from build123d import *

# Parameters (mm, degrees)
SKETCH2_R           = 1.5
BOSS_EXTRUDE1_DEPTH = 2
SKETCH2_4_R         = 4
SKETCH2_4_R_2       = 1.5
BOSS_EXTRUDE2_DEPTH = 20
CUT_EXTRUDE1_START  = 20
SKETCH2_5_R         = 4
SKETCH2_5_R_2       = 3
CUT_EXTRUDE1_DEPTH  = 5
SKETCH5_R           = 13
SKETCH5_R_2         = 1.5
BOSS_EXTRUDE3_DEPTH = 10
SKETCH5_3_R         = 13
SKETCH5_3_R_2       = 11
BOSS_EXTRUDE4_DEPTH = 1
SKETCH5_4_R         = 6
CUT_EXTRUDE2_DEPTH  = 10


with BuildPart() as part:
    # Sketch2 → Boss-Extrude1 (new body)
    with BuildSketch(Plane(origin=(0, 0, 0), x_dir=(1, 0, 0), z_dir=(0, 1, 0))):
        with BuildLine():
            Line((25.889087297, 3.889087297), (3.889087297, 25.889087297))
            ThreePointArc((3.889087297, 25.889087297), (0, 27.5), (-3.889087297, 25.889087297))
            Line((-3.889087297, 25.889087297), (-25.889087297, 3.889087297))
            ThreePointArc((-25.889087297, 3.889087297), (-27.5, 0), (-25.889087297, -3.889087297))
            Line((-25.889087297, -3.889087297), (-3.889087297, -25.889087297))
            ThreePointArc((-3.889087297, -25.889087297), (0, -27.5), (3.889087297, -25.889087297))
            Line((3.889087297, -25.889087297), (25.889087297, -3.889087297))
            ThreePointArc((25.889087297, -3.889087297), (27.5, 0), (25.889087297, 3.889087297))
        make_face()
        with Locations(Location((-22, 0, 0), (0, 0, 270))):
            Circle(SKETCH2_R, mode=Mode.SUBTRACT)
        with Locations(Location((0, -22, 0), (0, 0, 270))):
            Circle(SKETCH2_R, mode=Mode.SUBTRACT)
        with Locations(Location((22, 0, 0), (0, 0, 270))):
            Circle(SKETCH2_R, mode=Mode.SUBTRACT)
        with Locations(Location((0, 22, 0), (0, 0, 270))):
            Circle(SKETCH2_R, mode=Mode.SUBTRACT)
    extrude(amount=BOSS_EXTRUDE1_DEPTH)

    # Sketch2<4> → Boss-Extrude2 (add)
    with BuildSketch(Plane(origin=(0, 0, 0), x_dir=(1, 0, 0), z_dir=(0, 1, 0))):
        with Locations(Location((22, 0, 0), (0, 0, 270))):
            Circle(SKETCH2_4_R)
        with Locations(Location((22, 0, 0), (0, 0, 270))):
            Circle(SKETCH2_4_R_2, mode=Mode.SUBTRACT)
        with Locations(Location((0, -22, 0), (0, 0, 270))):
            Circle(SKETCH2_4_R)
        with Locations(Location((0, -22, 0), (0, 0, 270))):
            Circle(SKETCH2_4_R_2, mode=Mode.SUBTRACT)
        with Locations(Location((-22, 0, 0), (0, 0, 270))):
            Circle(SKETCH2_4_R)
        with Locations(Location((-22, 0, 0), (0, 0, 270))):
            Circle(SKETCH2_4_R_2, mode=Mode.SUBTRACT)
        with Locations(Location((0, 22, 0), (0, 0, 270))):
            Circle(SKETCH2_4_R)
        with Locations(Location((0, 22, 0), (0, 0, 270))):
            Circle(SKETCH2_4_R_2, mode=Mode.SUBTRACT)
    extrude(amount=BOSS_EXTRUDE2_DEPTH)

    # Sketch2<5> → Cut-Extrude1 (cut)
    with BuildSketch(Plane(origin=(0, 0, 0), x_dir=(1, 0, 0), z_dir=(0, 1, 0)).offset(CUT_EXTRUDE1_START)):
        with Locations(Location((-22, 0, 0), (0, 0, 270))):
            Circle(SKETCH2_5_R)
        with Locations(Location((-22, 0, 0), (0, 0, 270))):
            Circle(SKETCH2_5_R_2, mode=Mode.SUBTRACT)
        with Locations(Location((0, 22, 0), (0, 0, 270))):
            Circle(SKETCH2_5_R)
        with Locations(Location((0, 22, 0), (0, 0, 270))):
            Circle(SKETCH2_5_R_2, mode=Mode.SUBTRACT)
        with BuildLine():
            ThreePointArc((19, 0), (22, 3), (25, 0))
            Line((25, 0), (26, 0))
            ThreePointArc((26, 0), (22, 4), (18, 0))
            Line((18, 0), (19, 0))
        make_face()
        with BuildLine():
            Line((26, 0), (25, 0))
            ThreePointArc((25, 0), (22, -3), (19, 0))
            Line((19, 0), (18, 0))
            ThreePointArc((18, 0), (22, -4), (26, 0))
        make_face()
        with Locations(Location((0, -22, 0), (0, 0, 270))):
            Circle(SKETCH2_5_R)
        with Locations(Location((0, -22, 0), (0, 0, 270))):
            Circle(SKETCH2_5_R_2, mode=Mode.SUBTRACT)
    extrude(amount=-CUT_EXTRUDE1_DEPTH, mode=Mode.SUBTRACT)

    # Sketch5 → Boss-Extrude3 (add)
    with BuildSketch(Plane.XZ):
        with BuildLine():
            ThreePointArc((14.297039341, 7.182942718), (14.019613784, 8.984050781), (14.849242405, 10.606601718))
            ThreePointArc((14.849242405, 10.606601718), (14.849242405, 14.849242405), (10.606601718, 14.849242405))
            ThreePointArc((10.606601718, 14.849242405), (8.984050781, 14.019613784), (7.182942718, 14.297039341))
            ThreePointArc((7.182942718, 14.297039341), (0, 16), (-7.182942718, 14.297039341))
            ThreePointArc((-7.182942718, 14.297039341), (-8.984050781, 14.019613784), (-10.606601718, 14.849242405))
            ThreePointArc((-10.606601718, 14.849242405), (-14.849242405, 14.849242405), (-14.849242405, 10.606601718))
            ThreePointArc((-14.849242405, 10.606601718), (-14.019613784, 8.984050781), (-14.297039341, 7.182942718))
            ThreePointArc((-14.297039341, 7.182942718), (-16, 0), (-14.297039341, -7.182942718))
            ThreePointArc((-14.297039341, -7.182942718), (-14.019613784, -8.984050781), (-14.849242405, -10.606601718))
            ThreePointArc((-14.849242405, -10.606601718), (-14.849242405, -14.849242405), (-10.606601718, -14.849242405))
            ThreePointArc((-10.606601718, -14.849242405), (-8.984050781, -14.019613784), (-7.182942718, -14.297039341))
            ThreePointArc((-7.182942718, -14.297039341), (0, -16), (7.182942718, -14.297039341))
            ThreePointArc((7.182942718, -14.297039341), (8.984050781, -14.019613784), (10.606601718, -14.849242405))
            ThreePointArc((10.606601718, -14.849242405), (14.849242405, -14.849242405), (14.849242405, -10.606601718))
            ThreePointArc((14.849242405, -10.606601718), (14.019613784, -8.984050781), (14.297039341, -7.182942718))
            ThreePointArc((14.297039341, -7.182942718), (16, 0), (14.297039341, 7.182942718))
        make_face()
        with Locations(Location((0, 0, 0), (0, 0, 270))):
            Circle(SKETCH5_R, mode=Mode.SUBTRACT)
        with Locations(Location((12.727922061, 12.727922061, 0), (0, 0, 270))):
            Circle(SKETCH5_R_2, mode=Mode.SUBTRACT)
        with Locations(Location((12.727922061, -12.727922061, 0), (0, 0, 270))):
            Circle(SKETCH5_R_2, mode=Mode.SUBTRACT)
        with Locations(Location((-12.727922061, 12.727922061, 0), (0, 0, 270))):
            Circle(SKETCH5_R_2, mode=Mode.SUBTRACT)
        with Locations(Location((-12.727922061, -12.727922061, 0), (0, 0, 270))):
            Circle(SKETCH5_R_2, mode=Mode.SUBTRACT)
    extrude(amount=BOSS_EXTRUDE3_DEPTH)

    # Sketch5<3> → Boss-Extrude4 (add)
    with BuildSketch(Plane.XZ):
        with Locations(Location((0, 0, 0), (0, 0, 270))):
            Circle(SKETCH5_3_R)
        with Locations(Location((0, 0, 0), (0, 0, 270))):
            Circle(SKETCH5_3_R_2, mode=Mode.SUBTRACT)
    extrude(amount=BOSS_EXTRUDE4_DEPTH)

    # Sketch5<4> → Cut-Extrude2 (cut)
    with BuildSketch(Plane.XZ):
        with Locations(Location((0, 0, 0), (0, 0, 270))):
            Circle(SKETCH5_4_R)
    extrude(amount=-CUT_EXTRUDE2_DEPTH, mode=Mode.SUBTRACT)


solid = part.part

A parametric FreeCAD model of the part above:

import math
import FreeCAD as App
import Part
import Sketcher
from FreeCAD import Vector

doc = App.newDocument("Part")
body = doc.addObject("PartDesign::Body", "Body")

# Sketch on XZ plane
sketch1 = doc.addObject("Sketcher::SketchObject", "Sketch")
body.addObject(sketch1)
sketch1.AttachmentSupport = (doc.XZ_Plane, [""])
sketch1.MapMode = "FlatFace"
sketch1.addGeometry(Part.LineSegment(Vector(25.9, -3.9, 0), Vector(3.9, -25.9, 0)), False)
sketch1.addGeometry(Part.ArcOfCircle(Part.Circle(Vector(0, -22, 0), Vector(0, 0, 1), 5.5), math.radians(-135), math.radians(-45)), False)
sketch1.addGeometry(Part.LineSegment(Vector(-3.9, -25.9, 0), Vector(-25.9, -3.9, 0)), False)
sketch1.addGeometry(Part.ArcOfCircle(Part.Circle(Vector(-22, 0, 0), Vector(0, 0, 1), 5.5), math.radians(135), math.radians(225)), False)
sketch1.addGeometry(Part.LineSegment(Vector(-25.9, 3.9, 0), Vector(-3.9, 25.9, 0)), False)
sketch1.addGeometry(Part.ArcOfCircle(Part.Circle(Vector(0, 22, 0), Vector(0, 0, 1), 5.5), math.radians(45), math.radians(135)), False)
sketch1.addGeometry(Part.LineSegment(Vector(3.9, 25.9, 0), Vector(25.9, 3.9, 0)), False)
sketch1.addGeometry(Part.ArcOfCircle(Part.Circle(Vector(22, 0, 0), Vector(0, 0, 1), 5.5), math.radians(-45), math.radians(45)), False)
sketch1.addGeometry(Part.Circle(Vector(0, 22, 0), Vector(0, 0, 1), 1.5), False)
sketch1.addGeometry(Part.Circle(Vector(-22, 0, 0), Vector(0, 0, 1), 1.5), False)
sketch1.addGeometry(Part.Circle(Vector(22, 0, 0), Vector(0, 0, 1), 1.5), False)
sketch1.addGeometry(Part.Circle(Vector(0, -22, 0), Vector(0, 0, 1), 1.5), False)
sketch1.addConstraint(Sketcher.Constraint("Tangent", 0, 2, 1, 2))
sketch1.addConstraint(Sketcher.Constraint("Tangent", 1, 1, 2, 1))
sketch1.addConstraint(Sketcher.Constraint("Tangent", 2, 2, 3, 2))
sketch1.addConstraint(Sketcher.Constraint("Tangent", 3, 1, 4, 1))
sketch1.addConstraint(Sketcher.Constraint("Tangent", 4, 2, 5, 2))
sketch1.addConstraint(Sketcher.Constraint("Tangent", 5, 1, 6, 1))
sketch1.addConstraint(Sketcher.Constraint("Tangent", 6, 2, 7, 2))
sketch1.addConstraint(Sketcher.Constraint("Tangent", 7, 1, 0, 1))
sketch1.addConstraint(Sketcher.Constraint("Coincident", 8, 3, 5, 3))
sketch1.addConstraint(Sketcher.Constraint("Coincident", 9, 3, 3, 3))
sketch1.addConstraint(Sketcher.Constraint("Coincident", 10, 3, 7, 3))
sketch1.addConstraint(Sketcher.Constraint("Coincident", 11, 3, 1, 3))
sketch1.addConstraint(Sketcher.Constraint("Equal", 1, 3))
sketch1.addConstraint(Sketcher.Constraint("Equal", 3, 5))
sketch1.addConstraint(Sketcher.Constraint("Equal", 5, 7))
sketch1.addConstraint(Sketcher.Constraint("Equal", 8, 9))
sketch1.addConstraint(Sketcher.Constraint("Equal", 9, 10))
sketch1.addConstraint(Sketcher.Constraint("Equal", 10, 11))
sketch1.addConstraint(Sketcher.Constraint("Symmetric", 1, 3, 5, 3, -1, 1))
sketch1.addConstraint(Sketcher.Constraint("Symmetric", 3, 3, 7, 3, -1, 1))
sketch1.addConstraint(Sketcher.Constraint("Symmetric", 0, 2, 1, 1, -2))
sketch1.addConstraint(Sketcher.Constraint("Perpendicular", 0, 2))
sketch1.addConstraint(Sketcher.Constraint("Diameter", 8, 3.0))
sketch1.addConstraint(Sketcher.Constraint("Radius", 1, 5.5))
sketch1.addConstraint(Sketcher.Constraint("DistanceY", 1, 3, -1, 1, 22.0))
pad1 = doc.addObject("PartDesign::Pad", "Pad")
body.addObject(pad1)
pad1.Profile = sketch1
pad1.Length = 2
pad1.Reversed = True

# Sketch on XZ plane
sketch2 = doc.addObject("Sketcher::SketchObject", "Sketch001")
body.addObject(sketch2)
sketch2.AttachmentSupport = (doc.XZ_Plane, [""])
sketch2.MapMode = "FlatFace"
sketch2.addGeometry(Part.Circle(Vector(22, 0, 0), Vector(0, 0, 1), 4), False)
sketch2.addGeometry(Part.Circle(Vector(22, 0, 0), Vector(0, 0, 1), 1.5), False)
sketch2.addGeometry(Part.Circle(Vector(0, 22, 0), Vector(0, 0, 1), 4), False)
sketch2.addGeometry(Part.Circle(Vector(0, 22, 0), Vector(0, 0, 1), 1.5), False)
sketch2.addGeometry(Part.Circle(Vector(-22, 0, 0), Vector(0, 0, 1), 4), False)
sketch2.addGeometry(Part.Circle(Vector(-22, 0, 0), Vector(0, 0, 1), 1.5), False)
sketch2.addGeometry(Part.Circle(Vector(0, -22, 0), Vector(0, 0, 1), 4), False)
sketch2.addGeometry(Part.Circle(Vector(0, -22, 0), Vector(0, 0, 1), 1.5), False)
sketch2.addConstraint(Sketcher.Constraint("Coincident", 1, 3, 0, 3))
sketch2.addConstraint(Sketcher.Constraint("Coincident", 3, 3, 2, 3))
sketch2.addConstraint(Sketcher.Constraint("Coincident", 5, 3, 4, 3))
sketch2.addConstraint(Sketcher.Constraint("Coincident", 7, 3, 6, 3))
sketch2.addConstraint(Sketcher.Constraint("Equal", 0, 2))
sketch2.addConstraint(Sketcher.Constraint("Equal", 1, 3))
sketch2.addConstraint(Sketcher.Constraint("Equal", 2, 4))
sketch2.addConstraint(Sketcher.Constraint("Equal", 3, 5))
sketch2.addConstraint(Sketcher.Constraint("Equal", 4, 6))
sketch2.addConstraint(Sketcher.Constraint("Equal", 5, 7))
sketch2.addConstraint(Sketcher.Constraint("Symmetric", 0, 3, 4, 3, -1, 1))
sketch2.addConstraint(Sketcher.Constraint("Symmetric", 2, 3, 6, 3, -1, 1))
sketch2.addConstraint(Sketcher.Constraint("PointOnObject", 0, 3, -1))
sketch2.addConstraint(Sketcher.Constraint("PointOnObject", 2, 3, -2))
sketch2.addConstraint(Sketcher.Constraint("Diameter", 0, 8.0))
sketch2.addConstraint(Sketcher.Constraint("Diameter", 1, 3.0))
sketch2.addConstraint(Sketcher.Constraint("DistanceX", -1, 1, 0, 3, 22.0))
sketch2.addConstraint(Sketcher.Constraint("DistanceY", -1, 1, 2, 3, 22.0))
pad2 = doc.addObject("PartDesign::Pad", "Pad001")
body.addObject(pad2)
pad2.Profile = sketch2
pad2.Length = 20
pad2.Reversed = True

# Sketch on XZ plane
sketch3 = doc.addObject("Sketcher::SketchObject", "Sketch002")
body.addObject(sketch3)
sketch3.AttachmentSupport = (doc.XZ_Plane, [""])
sketch3.MapMode = "FlatFace"
sketch3.AttachmentOffset = App.Placement(Vector(0, 0, -20), App.Rotation())
sketch3.addGeometry(Part.Circle(Vector(-22, 0, 0), Vector(0, 0, 1), 4), False)
sketch3.addGeometry(Part.Circle(Vector(-22, 0, 0), Vector(0, 0, 1), 3), False)
sketch3.addGeometry(Part.Circle(Vector(0, -22, 0), Vector(0, 0, 1), 4), False)
sketch3.addGeometry(Part.Circle(Vector(0, -22, 0), Vector(0, 0, 1), 3), False)
sketch3.addGeometry(Part.Circle(Vector(22, 0, 0), Vector(0, 0, 1), 4), False)
sketch3.addGeometry(Part.Circle(Vector(22, 0, 0), Vector(0, 0, 1), 3), False)
sketch3.addGeometry(Part.Circle(Vector(0, 22, 0), Vector(0, 0, 1), 4), False)
sketch3.addGeometry(Part.Circle(Vector(0, 22, 0), Vector(0, 0, 1), 3), False)
sketch3.addConstraint(Sketcher.Constraint("Coincident", 1, 3, 0, 3))
sketch3.addConstraint(Sketcher.Constraint("Coincident", 3, 3, 2, 3))
sketch3.addConstraint(Sketcher.Constraint("Coincident", 5, 3, 4, 3))
sketch3.addConstraint(Sketcher.Constraint("Coincident", 7, 3, 6, 3))
sketch3.addConstraint(Sketcher.Constraint("Equal", 0, 2))
sketch3.addConstraint(Sketcher.Constraint("Equal", 1, 3))
sketch3.addConstraint(Sketcher.Constraint("Equal", 2, 4))
sketch3.addConstraint(Sketcher.Constraint("Equal", 3, 5))
sketch3.addConstraint(Sketcher.Constraint("Equal", 4, 6))
sketch3.addConstraint(Sketcher.Constraint("Equal", 5, 7))
sketch3.addConstraint(Sketcher.Constraint("Symmetric", 0, 3, 4, 3, -1, 1))
sketch3.addConstraint(Sketcher.Constraint("Symmetric", 2, 3, 6, 3, -1, 1))
sketch3.addConstraint(Sketcher.Constraint("PointOnObject", 0, 3, -1))
sketch3.addConstraint(Sketcher.Constraint("PointOnObject", 2, 3, -2))
sketch3.addConstraint(Sketcher.Constraint("Diameter", 0, 8.0))
sketch3.addConstraint(Sketcher.Constraint("Diameter", 1, 6.0))
sketch3.addConstraint(Sketcher.Constraint("DistanceX", 0, 3, -1, 1, 22.0))
sketch3.addConstraint(Sketcher.Constraint("DistanceY", 2, 3, -1, 1, 22.0))
pocket1 = doc.addObject("PartDesign::Pocket", "Pocket")
body.addObject(pocket1)
pocket1.Profile = sketch3
pocket1.Length = 5
pocket1.Reversed = True

# Sketch on XZ plane
sketch4 = doc.addObject("Sketcher::SketchObject", "Sketch003")
body.addObject(sketch4)
sketch4.AttachmentSupport = (doc.XZ_Plane, [""])
sketch4.MapMode = "FlatFace"
sketch4.addGeometry(Part.ArcOfCircle(Part.Circle(Vector(16.9, 8.5, 0), Vector(0, 0, 1), 3), math.radians(135), math.radians(207)), False)
sketch4.addGeometry(Part.ArcOfCircle(Part.Circle(Vector(12.7, 12.7, 0), Vector(0, 0, 1), 3), math.radians(-45), math.radians(135)), False)
sketch4.addGeometry(Part.ArcOfCircle(Part.Circle(Vector(8.5, 16.9, 0), Vector(0, 0, 1), 3), math.radians(-117), math.radians(-45)), False)
sketch4.addGeometry(Part.ArcOfCircle(Part.Circle(Vector(0, 0, 0), Vector(0, 0, 1), 16), math.radians(63), math.radians(117)), False)
sketch4.addGeometry(Part.ArcOfCircle(Part.Circle(Vector(-8.5, 16.9, 0), Vector(0, 0, 1), 3), math.radians(-135), math.radians(-63)), False)
sketch4.addGeometry(Part.ArcOfCircle(Part.Circle(Vector(-12.7, 12.7, 0), Vector(0, 0, 1), 3), math.radians(45), math.radians(225)), False)
sketch4.addGeometry(Part.ArcOfCircle(Part.Circle(Vector(-16.9, 8.5, 0), Vector(0, 0, 1), 3), math.radians(-27), math.radians(45)), False)
sketch4.addGeometry(Part.ArcOfCircle(Part.Circle(Vector(0, 0, 0), Vector(0, 0, 1), 16), math.radians(153), math.radians(207)), False)
sketch4.addGeometry(Part.ArcOfCircle(Part.Circle(Vector(-16.9, -8.5, 0), Vector(0, 0, 1), 3), math.radians(-45), math.radians(27)), False)
sketch4.addGeometry(Part.ArcOfCircle(Part.Circle(Vector(-12.7, -12.7, 0), Vector(0, 0, 1), 3), math.radians(135), math.radians(315)), False)
sketch4.addGeometry(Part.ArcOfCircle(Part.Circle(Vector(-8.5, -16.9, 0), Vector(0, 0, 1), 3), math.radians(63), math.radians(135)), False)
sketch4.addGeometry(Part.ArcOfCircle(Part.Circle(Vector(0, 0, 0), Vector(0, 0, 1), 16), math.radians(-117), math.radians(-63)), False)
sketch4.addGeometry(Part.ArcOfCircle(Part.Circle(Vector(8.5, -16.9, 0), Vector(0, 0, 1), 3), math.radians(45), math.radians(117)), False)
sketch4.addGeometry(Part.ArcOfCircle(Part.Circle(Vector(12.7, -12.7, 0), Vector(0, 0, 1), 3), math.radians(-135), math.radians(45)), False)
sketch4.addGeometry(Part.ArcOfCircle(Part.Circle(Vector(16.9, -8.5, 0), Vector(0, 0, 1), 3), math.radians(153), math.radians(225)), False)
sketch4.addGeometry(Part.ArcOfCircle(Part.Circle(Vector(0, 0, 0), Vector(0, 0, 1), 16), math.radians(-27), math.radians(27)), False)
sketch4.addGeometry(Part.Circle(Vector(-12.7, -12.7, 0), Vector(0, 0, 1), 1.5), False)
sketch4.addGeometry(Part.Circle(Vector(12.7, -12.7, 0), Vector(0, 0, 1), 1.5), False)
sketch4.addGeometry(Part.Circle(Vector(-12.7, 12.7, 0), Vector(0, 0, 1), 1.5), False)
sketch4.addGeometry(Part.Circle(Vector(0, 0, 0), Vector(0, 0, 1), 13), False)
sketch4.addGeometry(Part.Circle(Vector(12.7, 12.7, 0), Vector(0, 0, 1), 1.5), False)
sketch4.addConstraint(Sketcher.Constraint("Tangent", 0, 1, 1, 1))
sketch4.addConstraint(Sketcher.Constraint("Tangent", 1, 2, 2, 2))
sketch4.addConstraint(Sketcher.Constraint("Tangent", 2, 1, 3, 1))
sketch4.addConstraint(Sketcher.Constraint("Tangent", 3, 2, 4, 2))
sketch4.addConstraint(Sketcher.Constraint("Tangent", 4, 1, 5, 1))
sketch4.addConstraint(Sketcher.Constraint("Tangent", 5, 2, 6, 2))
sketch4.addConstraint(Sketcher.Constraint("Tangent", 6, 1, 7, 1))
sketch4.addConstraint(Sketcher.Constraint("Tangent", 7, 2, 8, 2))
sketch4.addConstraint(Sketcher.Constraint("Tangent", 8, 1, 9, 1))
sketch4.addConstraint(Sketcher.Constraint("Tangent", 9, 2, 10, 2))
sketch4.addConstraint(Sketcher.Constraint("Tangent", 10, 1, 11, 1))
sketch4.addConstraint(Sketcher.Constraint("Tangent", 11, 2, 12, 2))
sketch4.addConstraint(Sketcher.Constraint("Tangent", 12, 1, 13, 1))
sketch4.addConstraint(Sketcher.Constraint("Tangent", 13, 2, 14, 2))
sketch4.addConstraint(Sketcher.Constraint("Tangent", 14, 1, 15, 1))
sketch4.addConstraint(Sketcher.Constraint("Tangent", 15, 2, 0, 2))
sketch4.addConstraint(Sketcher.Constraint("Coincident", 3, 3, -1, 1))
sketch4.addConstraint(Sketcher.Constraint("Coincident", 7, 3, -1, 1))
sketch4.addConstraint(Sketcher.Constraint("Coincident", 11, 3, -1, 1))
sketch4.addConstraint(Sketcher.Constraint("Coincident", 15, 3, -1, 1))
sketch4.addConstraint(Sketcher.Constraint("Coincident", 19, 3, -1, 1))
sketch4.addConstraint(Sketcher.Constraint("Coincident", 16, 3, 9, 3))
sketch4.addConstraint(Sketcher.Constraint("Coincident", 17, 3, 13, 3))
sketch4.addConstraint(Sketcher.Constraint("Coincident", 18, 3, 5, 3))
sketch4.addConstraint(Sketcher.Constraint("Coincident", 20, 3, 1, 3))
sketch4.addConstraint(Sketcher.Constraint("Equal", 0, 2))
sketch4.addConstraint(Sketcher.Constraint("Equal", 2, 4))
sketch4.addConstraint(Sketcher.Constraint("Equal", 1, 5))
sketch4.addConstraint(Sketcher.Constraint("Equal", 4, 6))
sketch4.addConstraint(Sketcher.Constraint("Equal", 3, 7))
sketch4.addConstraint(Sketcher.Constraint("Equal", 6, 8))
sketch4.addConstraint(Sketcher.Constraint("Equal", 5, 9))
sketch4.addConstraint(Sketcher.Constraint("Equal", 8, 10))
sketch4.addConstraint(Sketcher.Constraint("Equal", 7, 11))
sketch4.addConstraint(Sketcher.Constraint("Equal", 10, 12))
sketch4.addConstraint(Sketcher.Constraint("Equal", 9, 13))
sketch4.addConstraint(Sketcher.Constraint("Equal", 12, 14))
sketch4.addConstraint(Sketcher.Constraint("Equal", 11, 15))
sketch4.addConstraint(Sketcher.Constraint("Equal", 16, 17))
sketch4.addConstraint(Sketcher.Constraint("Equal", 17, 18))
sketch4.addConstraint(Sketcher.Constraint("Equal", 18, 20))
sketch4.addConstraint(Sketcher.Constraint("Symmetric", 1, 3, 9, 3, -1, 1))
sketch4.addConstraint(Sketcher.Constraint("Symmetric", 5, 3, 13, 3, -1, 1))
sketch4.addConstraint(Sketcher.Constraint("Symmetric", 1, 3, 5, 3, -2))
sketch4.addConstraint(Sketcher.Constraint("Diameter", 16, 3.0))
sketch4.addConstraint(Sketcher.Constraint("Diameter", 19, 26.0))
sketch4.addConstraint(Sketcher.Constraint("Radius", 1, 3.0))
sketch4.addConstraint(Sketcher.Constraint("Radius", 3, 16.0))
sketch4.addConstraint(Sketcher.Constraint("Radius", 0, 2.961538))
sketch4.addConstraint(Sketcher.Constraint("DistanceY", -1, 1, 0, 1, 10.606602))
sketch4.addConstraint(Sketcher.Constraint("DistanceX", -1, 1, 1, 2, 10.606602))
pad3 = doc.addObject("PartDesign::Pad", "Pad002")
body.addObject(pad3)
pad3.Profile = sketch4
pad3.Length = 10

# Sketch on XZ plane
sketch5 = doc.addObject("Sketcher::SketchObject", "Sketch004")
body.addObject(sketch5)
sketch5.AttachmentSupport = (doc.XZ_Plane, [""])
sketch5.MapMode = "FlatFace"
sketch5.addGeometry(Part.Circle(Vector(0, 0, 0), Vector(0, 0, 1), 13), False)
sketch5.addGeometry(Part.Circle(Vector(0, 0, 0), Vector(0, 0, 1), 11), False)
sketch5.addConstraint(Sketcher.Constraint("Coincident", 0, 3, -1, 1))
sketch5.addConstraint(Sketcher.Constraint("Coincident", 1, 3, -1, 1))
sketch5.addConstraint(Sketcher.Constraint("Diameter", 0, 26.0))
sketch5.addConstraint(Sketcher.Constraint("Diameter", 1, 22.0))
pad4 = doc.addObject("PartDesign::Pad", "Pad003")
body.addObject(pad4)
pad4.Profile = sketch5
pad4.Length = 1

# Sketch on XZ plane
sketch6 = doc.addObject("Sketcher::SketchObject", "Sketch005")
body.addObject(sketch6)
sketch6.AttachmentSupport = (doc.XZ_Plane, [""])
sketch6.MapMode = "FlatFace"
sketch6.addGeometry(Part.Circle(Vector(0, 0, 0), Vector(0, 0, 1), 6), False)
sketch6.addConstraint(Sketcher.Constraint("Coincident", 0, 3, -1, 1))
sketch6.addConstraint(Sketcher.Constraint("Diameter", 0, 12.0))
pocket2 = doc.addObject("PartDesign::Pocket", "Pocket001")
body.addObject(pocket2)
pocket2.Profile = sketch6
pocket2.Length = 10

doc.recompute()
